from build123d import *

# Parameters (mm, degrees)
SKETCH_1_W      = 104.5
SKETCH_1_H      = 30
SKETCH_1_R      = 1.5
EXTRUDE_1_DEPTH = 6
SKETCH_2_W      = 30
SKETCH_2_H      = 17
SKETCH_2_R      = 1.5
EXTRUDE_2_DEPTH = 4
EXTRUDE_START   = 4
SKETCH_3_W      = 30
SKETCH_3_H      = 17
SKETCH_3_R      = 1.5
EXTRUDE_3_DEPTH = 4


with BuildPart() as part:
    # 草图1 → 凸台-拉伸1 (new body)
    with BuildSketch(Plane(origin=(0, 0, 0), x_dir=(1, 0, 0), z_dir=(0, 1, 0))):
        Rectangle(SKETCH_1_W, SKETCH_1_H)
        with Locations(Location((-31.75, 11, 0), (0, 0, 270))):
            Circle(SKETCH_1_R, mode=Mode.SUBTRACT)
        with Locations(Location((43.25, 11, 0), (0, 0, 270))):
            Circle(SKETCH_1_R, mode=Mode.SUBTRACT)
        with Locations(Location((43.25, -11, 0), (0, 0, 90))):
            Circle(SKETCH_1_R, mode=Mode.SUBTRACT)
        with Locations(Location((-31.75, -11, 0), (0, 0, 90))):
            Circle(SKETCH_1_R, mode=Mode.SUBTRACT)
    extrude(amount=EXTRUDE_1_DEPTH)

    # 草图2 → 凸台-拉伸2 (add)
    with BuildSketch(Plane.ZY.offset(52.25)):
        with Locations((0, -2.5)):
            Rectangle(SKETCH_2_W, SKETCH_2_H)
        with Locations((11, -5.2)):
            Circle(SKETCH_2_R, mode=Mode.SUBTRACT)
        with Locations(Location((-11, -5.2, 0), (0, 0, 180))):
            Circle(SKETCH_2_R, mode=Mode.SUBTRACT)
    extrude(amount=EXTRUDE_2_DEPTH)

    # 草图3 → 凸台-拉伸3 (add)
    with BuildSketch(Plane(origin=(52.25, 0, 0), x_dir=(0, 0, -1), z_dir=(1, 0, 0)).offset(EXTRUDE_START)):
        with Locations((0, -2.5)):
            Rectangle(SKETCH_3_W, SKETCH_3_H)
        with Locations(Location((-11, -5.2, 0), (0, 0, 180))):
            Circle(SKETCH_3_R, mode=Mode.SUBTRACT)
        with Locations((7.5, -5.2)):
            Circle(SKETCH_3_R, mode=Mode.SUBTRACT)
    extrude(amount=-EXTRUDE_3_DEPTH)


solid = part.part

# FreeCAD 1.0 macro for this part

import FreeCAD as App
import Part
import Sketcher


def add_polygon(sketch, points):
    """Adds a closed chain of lines whose ends are joined by coincident constraints."""
    first, n = sketch.GeometryCount, len(points)
    for a, b in zip(points, points[1:] + points[:1]):
        sketch.addGeometry(Part.LineSegment(App.Vector(*a, 0), App.Vector(*b, 0)), False)
    for i in range(n):
        sketch.addConstraint(Sketcher.Constraint("Coincident", first + i, 2, first + (i + 1) % n, 1))

doc = App.newDocument("Part")
body = doc.addObject("PartDesign::Body", "Body")

sketch1 = body.newObject("Sketcher::SketchObject", "Sketch")
sketch1.AttachmentSupport = (doc.getObject("XZ_Plane"), [""])
sketch1.MapMode = "FlatFace"
add_polygon(sketch1, [(-52.2, -15), (-52.2, 15), (52.2, 15), (52.2, -15)])
sketch1.addGeometry(Part.Circle(App.Vector(-31.8, 11, 0), App.Vector(0, 0, 1), 1.5), False)
sketch1.addGeometry(Part.Circle(App.Vector(43.2, 11, 0), App.Vector(0, 0, 1), 1.5), False)
sketch1.addGeometry(Part.Circle(App.Vector(-31.8, -11, 0), App.Vector(0, 0, 1), 1.5), False)
sketch1.addGeometry(Part.Circle(App.Vector(43.2, -11, 0), App.Vector(0, 0, 1), 1.5), False)
sketch1.addConstraint([
    Sketcher.Constraint("Vertical", 0),
    Sketcher.Constraint("Horizontal", 1),
    Sketcher.Constraint("Vertical", 2),
    Sketcher.Constraint("Horizontal", 3),
    Sketcher.Constraint("Equal", 4, 5),
    Sketcher.Constraint("Equal", 5, 6),
    Sketcher.Constraint("Equal", 6, 7),
    Sketcher.Constraint("Symmetric", 0, 2, 2, 2, -1, 1),
    Sketcher.Constraint("Symmetric", 4, 3, 6, 3, -1),
    Sketcher.Constraint("Symmetric", 5, 3, 7, 3, -1),
    Sketcher.Constraint("Horizontal", 4, 3, 5, 3),
    Sketcher.Constraint("Diameter", 4, 3.0),
    Sketcher.Constraint("DistanceY", 0, 1, 0, 2, 30.0),
    Sketcher.Constraint("DistanceX", 1, 1, 1, 2, 104.5),
    Sketcher.Constraint("DistanceY", -1, 1, 4, 3, 11.0),
    Sketcher.Constraint("DistanceX", 4, 3, 5, 3, 75.0),
    Sketcher.Constraint("DistanceX", 5, 3, 1, 2, 9.0),
])
pad1 = body.newObject("PartDesign::Pad", "Pad")
pad1.Profile = sketch1
pad1.Length = 6
pad1.Reversed = True

sketch2 = body.newObject("Sketcher::SketchObject", "Sketch001")
sketch2.AttachmentSupport = (doc.getObject("YZ_Plane"), [""])
sketch2.MapMode = "FlatFace"
sketch2.AttachmentOffset = App.Placement(App.Vector(0, 0, -52.25), App.Rotation())
add_polygon(sketch2, [(6, -15), (-11, -15), (-11, 15), (6, 15)])
sketch2.addGeometry(Part.Circle(App.Vector(-5.2, -11, 0), App.Vector(0, 0, 1), 1.5), False)
sketch2.addGeometry(Part.Circle(App.Vector(-5.2, 11, 0), App.Vector(0, 0, 1), 1.5), False)
sketch2.addConstraint([
    Sketcher.Constraint("Horizontal", 0),
    Sketcher.Constraint("Vertical", 1),
    Sketcher.Constraint("Horizontal", 2),
    Sketcher.Constraint("Vertical", 3),
    Sketcher.Constraint("Equal", 4, 5),
    Sketcher.Constraint("Symmetric", 4, 3, 5, 3, -1),
    Sketcher.Constraint("Diameter", 4, 3.0),
    Sketcher.Constraint("DistanceX", 0, 2, 0, 1, 17.0),
    Sketcher.Constraint("DistanceY", 1, 1, 1, 2, 30.0),
    Sketcher.Constraint("DistanceY", 4, 3, -1, 1, 11.0),
    Sketcher.Constraint("DistanceX", 0, 2, -1, 1, 11.0),
    Sketcher.Constraint("DistanceY", 0, 2, -1, 1, 15.0),
    Sketcher.Constraint("DistanceX", 4, 3, -1, 1, 5.2),
])
pad2 = body.newObject("PartDesign::Pad", "Pad001")
pad2.Profile = sketch2
pad2.Length = 4
pad2.Reversed = True

sketch3 = body.newObject("Sketcher::SketchObject", "Sketch002")
sketch3.AttachmentSupport = (doc.getObject("YZ_Plane"), [""])
sketch3.MapMode = "FlatFace"
sketch3.AttachmentOffset = App.Placement(App.Vector(0, 0, 56.25), App.Rotation())
add_polygon(sketch3, [(6, 15), (-11, 15), (-11, -15), (6, -15)])
sketch3.addGeometry(Part.Circle(App.Vector(-5.2, 11, 0), App.Vector(0, 0, 1), 1.5), False)
sketch3.addGeometry(Part.Circle(App.Vector(-5.2, -7.5, 0), App.Vector(0, 0, 1), 1.5), False)
sketch3.addConstraint([
    Sketcher.Constraint("Horizontal", 0),
    Sketcher.Constraint("Vertical", 1),
    Sketcher.Constraint("Horizontal", 2),
    Sketcher.Constraint("Vertical", 3),
    Sketcher.Constraint("Equal", 4, 5),
    Sketcher.Constraint("Vertical", 4, 3, 5, 3),
    Sketcher.Constraint("Diameter", 4, 3.0),
    Sketcher.Constraint("DistanceX", 0, 2, 0, 1, 17.0),
    Sketcher.Constraint("DistanceY", 1, 2, 1, 1, 30.0),
    Sketcher.Constraint("DistanceY", -1, 1, 4, 3, 11.0),
    Sketcher.Constraint("DistanceX", 0, 2, -1, 1, 11.0),
    Sketcher.Constraint("DistanceY", -1, 1, 0, 2, 15.0),
    Sketcher.Constraint("DistanceX", 4, 3, -1, 1, 5.2),
    Sketcher.Constraint("DistanceY", 5, 3, -1, 1, 7.5),
])
pad3 = body.newObject("PartDesign::Pad", "Pad002")
pad3.Profile = sketch3
pad3.Length = 4
pad3.Reversed = True

doc.recompute()
